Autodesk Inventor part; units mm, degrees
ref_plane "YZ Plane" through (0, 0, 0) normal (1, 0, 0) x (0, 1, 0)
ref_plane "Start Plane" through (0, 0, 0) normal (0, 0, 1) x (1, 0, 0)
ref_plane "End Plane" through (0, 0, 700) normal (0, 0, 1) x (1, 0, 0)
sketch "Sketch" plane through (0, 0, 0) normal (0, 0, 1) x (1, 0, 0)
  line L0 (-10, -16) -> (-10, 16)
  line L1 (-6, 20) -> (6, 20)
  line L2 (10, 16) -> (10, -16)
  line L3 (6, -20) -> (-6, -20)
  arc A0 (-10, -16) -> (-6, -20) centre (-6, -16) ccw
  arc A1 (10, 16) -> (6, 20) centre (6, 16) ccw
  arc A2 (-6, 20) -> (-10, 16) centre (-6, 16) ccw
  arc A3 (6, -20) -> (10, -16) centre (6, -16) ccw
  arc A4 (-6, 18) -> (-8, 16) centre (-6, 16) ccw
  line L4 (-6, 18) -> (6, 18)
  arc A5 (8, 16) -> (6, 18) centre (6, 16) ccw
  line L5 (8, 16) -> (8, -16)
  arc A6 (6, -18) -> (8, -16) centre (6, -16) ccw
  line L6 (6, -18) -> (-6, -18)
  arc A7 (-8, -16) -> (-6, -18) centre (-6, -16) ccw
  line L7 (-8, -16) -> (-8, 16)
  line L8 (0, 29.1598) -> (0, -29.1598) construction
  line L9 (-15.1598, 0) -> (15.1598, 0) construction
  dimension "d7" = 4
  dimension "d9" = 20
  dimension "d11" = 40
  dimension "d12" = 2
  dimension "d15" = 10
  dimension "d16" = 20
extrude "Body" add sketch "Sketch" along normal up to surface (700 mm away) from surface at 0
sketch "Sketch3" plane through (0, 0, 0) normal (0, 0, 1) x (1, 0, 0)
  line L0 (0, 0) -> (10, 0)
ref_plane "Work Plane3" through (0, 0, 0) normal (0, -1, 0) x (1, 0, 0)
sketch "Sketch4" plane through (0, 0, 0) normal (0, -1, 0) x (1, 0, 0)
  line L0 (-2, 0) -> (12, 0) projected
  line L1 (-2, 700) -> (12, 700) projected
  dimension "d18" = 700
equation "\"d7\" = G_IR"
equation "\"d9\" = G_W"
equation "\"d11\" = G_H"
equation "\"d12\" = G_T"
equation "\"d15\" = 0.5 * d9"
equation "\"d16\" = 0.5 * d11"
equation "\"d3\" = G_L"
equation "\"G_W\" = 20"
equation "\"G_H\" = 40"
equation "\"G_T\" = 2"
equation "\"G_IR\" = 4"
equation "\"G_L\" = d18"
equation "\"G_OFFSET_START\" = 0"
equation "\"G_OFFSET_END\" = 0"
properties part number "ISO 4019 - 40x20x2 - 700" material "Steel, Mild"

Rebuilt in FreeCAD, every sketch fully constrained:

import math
import FreeCAD as App
import Part
import Sketcher

doc = App.newDocument("Part")
params = doc.addObject("Spreadsheet::Sheet", "Params")
for row, (alias, value) in enumerate([
    ("sketch1_radius", "4 mm"),
    ("sketch1_radius2", "2 mm"),
    ("pad1_length", "700 mm"),
], start=1):
    params.set(f"A{row}", alias)
    params.set(f"B{row}", "=" + value)
    params.setAlias(f"B{row}", alias)

body = doc.addObject("PartDesign::Body", "Body")

# Sketch on XY plane
sketch1 = doc.addObject("Sketcher::SketchObject", "Sketch")
body.addObject(sketch1)
sketch1.AttachmentSupport = (doc.XY_Plane, [""])
sketch1.MapMode = "FlatFace"
sketch1.addGeometry([
    Part.LineSegment(App.Vector(-10, 16, 0), App.Vector(-10, -16, 0)),  # 0
    Part.ArcOfCircle(Part.Circle(App.Vector(-6, -16, 0), App.Vector(0, 0, 1), 4), math.radians(180), math.radians(270)),  # 1
    Part.LineSegment(App.Vector(-6, -20, 0), App.Vector(6, -20, 0)),  # 2
    Part.ArcOfCircle(Part.Circle(App.Vector(6, -16, 0), App.Vector(0, 0, 1), 4), math.radians(-90), math.radians(0)),  # 3
    Part.LineSegment(App.Vector(10, -16, 0), App.Vector(10, 16, 0)),  # 4
    Part.ArcOfCircle(Part.Circle(App.Vector(6, 16, 0), App.Vector(0, 0, 1), 4), math.radians(0), math.radians(90)),  # 5
    Part.LineSegment(App.Vector(6, 20, 0), App.Vector(-6, 20, 0)),  # 6
    Part.ArcOfCircle(Part.Circle(App.Vector(-6, 16, 0), App.Vector(0, 0, 1), 4), math.radians(90), math.radians(180)),  # 7
    Part.ArcOfCircle(Part.Circle(App.Vector(-6, 16, 0), App.Vector(0, 0, 1), 2), math.radians(90), math.radians(180)),  # 8
    Part.LineSegment(App.Vector(-6, 18, 0), App.Vector(6, 18, 0)),  # 9
    Part.ArcOfCircle(Part.Circle(App.Vector(6, 16, 0), App.Vector(0, 0, 1), 2), math.radians(0), math.radians(90)),  # 10
    Part.LineSegment(App.Vector(8, 16, 0), App.Vector(8, -16, 0)),  # 11
    Part.ArcOfCircle(Part.Circle(App.Vector(6, -16, 0), App.Vector(0, 0, 1), 2), math.radians(-90), math.radians(0)),  # 12
    Part.LineSegment(App.Vector(6, -18, 0), App.Vector(-6, -18, 0)),  # 13
    Part.ArcOfCircle(Part.Circle(App.Vector(-6, -16, 0), App.Vector(0, 0, 1), 2), math.radians(180), math.radians(270)),  # 14
    Part.LineSegment(App.Vector(-8, -16, 0), App.Vector(-8, 16, 0)),  # 15
], False)
sketch1.addConstraint([
    Sketcher.Constraint("Tangent", 0, 2, 1, 1),
    Sketcher.Constraint("Tangent", 1, 2, 2, 1),
    Sketcher.Constraint("Tangent", 2, 2, 3, 1),
    Sketcher.Constraint("Tangent", 3, 2, 4, 1),
    Sketcher.Constraint("Tangent", 4, 2, 5, 1),
    Sketcher.Constraint("Tangent", 5, 2, 6, 1),
    Sketcher.Constraint("Tangent", 6, 2, 7, 1),
    Sketcher.Constraint("Tangent", 7, 2, 0, 1),
    Sketcher.Constraint("Tangent", 8, 1, 9, 1),
    Sketcher.Constraint("Tangent", 9, 2, 10, 2),
    Sketcher.Constraint("Tangent", 10, 1, 11, 1),
    Sketcher.Constraint("Tangent", 11, 2, 12, 2),
    Sketcher.Constraint("Tangent", 12, 1, 13, 1),
    Sketcher.Constraint("Tangent", 13, 2, 14, 2),
    Sketcher.Constraint("Tangent", 14, 1, 15, 1),
    Sketcher.Constraint("Tangent", 15, 2, 8, 2),
    Sketcher.Constraint("Vertical", 0),
    Sketcher.Constraint("Horizontal", 2),
    Sketcher.Constraint("Vertical", 4),
    Sketcher.Constraint("Horizontal", 6),
    Sketcher.Constraint("Horizontal", 9),
    Sketcher.Constraint("Vertical", 11),
    Sketcher.Constraint("Horizontal", 13),
    Sketcher.Constraint("Vertical", 15),
    Sketcher.Constraint("Coincident", 8, 3, 7, 3),
    Sketcher.Constraint("Coincident", 10, 3, 5, 3),
    Sketcher.Constraint("Coincident", 12, 3, 3, 3),
    Sketcher.Constraint("Equal", 1, 3),
    Sketcher.Constraint("Equal", 3, 5),
    Sketcher.Constraint("Equal", 5, 7),
    Sketcher.Constraint("Equal", 12, 14),
    Sketcher.Constraint("Symmetric", 1, 3, 5, 3, -1, 1),
    Sketcher.Constraint("Radius", 1, 4.0),
    Sketcher.Constraint("Radius", 8, 2.0),
    Sketcher.Constraint("DistanceX", 0, 2, -1, 1, 10.0),
    Sketcher.Constraint("DistanceY", 1, 2, -1, 1, 20.0),
])
sketch1.setExpression("Constraints[32]", "Params.sketch1_radius")
sketch1.setExpression("Constraints[33]", "Params.sketch1_radius2")
pad1 = doc.addObject("PartDesign::Pad", "Pad")
body.addObject(pad1)
pad1.Profile = sketch1
pad1.setExpression("Length", "Params.pad1_length")

doc.recompute()
